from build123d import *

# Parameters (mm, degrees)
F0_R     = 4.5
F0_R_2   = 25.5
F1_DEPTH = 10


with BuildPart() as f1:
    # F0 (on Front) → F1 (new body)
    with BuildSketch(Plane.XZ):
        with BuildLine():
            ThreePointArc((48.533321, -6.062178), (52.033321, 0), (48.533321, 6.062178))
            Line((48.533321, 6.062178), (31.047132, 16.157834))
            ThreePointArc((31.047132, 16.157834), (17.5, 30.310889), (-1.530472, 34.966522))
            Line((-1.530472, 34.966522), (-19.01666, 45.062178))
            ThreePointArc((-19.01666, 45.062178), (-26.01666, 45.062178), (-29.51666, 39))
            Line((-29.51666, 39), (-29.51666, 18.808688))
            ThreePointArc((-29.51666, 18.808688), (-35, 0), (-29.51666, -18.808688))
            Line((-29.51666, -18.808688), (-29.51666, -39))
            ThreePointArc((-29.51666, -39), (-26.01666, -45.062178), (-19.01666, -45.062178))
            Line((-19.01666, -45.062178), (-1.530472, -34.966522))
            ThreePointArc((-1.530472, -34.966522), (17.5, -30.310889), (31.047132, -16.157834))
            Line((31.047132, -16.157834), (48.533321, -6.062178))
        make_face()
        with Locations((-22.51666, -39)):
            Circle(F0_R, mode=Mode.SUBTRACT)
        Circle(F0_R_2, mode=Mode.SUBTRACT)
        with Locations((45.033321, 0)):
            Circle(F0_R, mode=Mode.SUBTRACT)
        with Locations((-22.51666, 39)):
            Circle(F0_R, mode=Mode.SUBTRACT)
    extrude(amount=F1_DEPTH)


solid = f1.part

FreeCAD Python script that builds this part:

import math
import FreeCAD as App
import Part
import Sketcher

V = App.Vector
Q = App.Units.Quantity

doc = App.newDocument("Part")
body = doc.addObject("PartDesign::Body", "Body")

# Sketch on XZ plane
sketch1 = body.newObject("Sketcher::SketchObject", "Sketch")
sketch1.AttachmentSupport = (doc.getObject("XZ_Plane"), [""])
sketch1.MapMode = "FlatFace"
sketch1.addGeometry([
    Part.ArcOfCircle(Part.Circle(V(45, 0, 0), V(0, 0, 1), 7), math.radians(-60), math.radians(60)),  # 0
    Part.LineSegment(V(48.5, 6.1, 0), V(31, 16.2, 0)),  # 1
    Part.ArcOfCircle(Part.Circle(V(0, 0, 0), V(0, 0, 1), 35), math.radians(27), math.radians(93)),  # 2
    Part.LineSegment(V(-1.5, 35, 0), V(-19, 45.1, 0)),  # 3
    Part.ArcOfCircle(Part.Circle(V(-22.5, 39, 0), V(0, 0, 1), 7), math.radians(60), math.radians(180)),  # 4
    Part.LineSegment(V(-29.5, 39, 0), V(-29.5, 18.8, 0)),  # 5
    Part.ArcOfCircle(Part.Circle(V(0, 0, 0), V(0, 0, 1), 35), math.radians(147), math.radians(213)),  # 6
    Part.LineSegment(V(-29.5, -18.8, 0), V(-29.5, -39, 0)),  # 7
    Part.ArcOfCircle(Part.Circle(V(-22.5, -39, 0), V(0, 0, 1), 7), math.radians(180), math.radians(300)),  # 8
    Part.LineSegment(V(-19, -45.1, 0), V(-1.5, -35, 0)),  # 9
    Part.ArcOfCircle(Part.Circle(V(0, 0, 0), V(0, 0, 1), 35), math.radians(-93), math.radians(-27)),  # 10
    Part.LineSegment(V(31, -16.2, 0), V(48.5, -6.1, 0)),  # 11
    Part.Circle(V(-22.5, -39, 0), V(0, 0, 1), 4.5),  # 12
    Part.Circle(V(0, 0, 0), V(0, 0, 1), 25.5),  # 13
    Part.Circle(V(-22.5, 39, 0), V(0, 0, 1), 4.5),  # 14
    Part.Circle(V(45, 0, 0), V(0, 0, 1), 4.5),  # 15
], False)
sketch1.addConstraint([
    Sketcher.Constraint("Tangent", 0, 2, 1, 1),
    Sketcher.Constraint("Coincident", 1, 2, 2, 1),
    Sketcher.Constraint("Coincident", 2, 2, 3, 1),
    Sketcher.Constraint("Tangent", 3, 2, 4, 1),
    Sketcher.Constraint("Tangent", 4, 2, 5, 1),
    Sketcher.Constraint("Coincident", 5, 2, 6, 1),
    Sketcher.Constraint("Coincident", 6, 2, 7, 1),
    Sketcher.Constraint("Tangent", 7, 2, 8, 1),
    Sketcher.Constraint("Tangent", 8, 2, 9, 1),
    Sketcher.Constraint("Coincident", 9, 2, 10, 1),
    Sketcher.Constraint("Coincident", 10, 2, 11, 1),
    Sketcher.Constraint("Tangent", 11, 2, 0, 1),
    Sketcher.Constraint("Vertical", 5),
    Sketcher.Constraint("Vertical", 7),
    Sketcher.Constraint("Coincident", 2, 3, -1, 1),
    Sketcher.Constraint("Coincident", 6, 3, -1, 1),
    Sketcher.Constraint("Coincident", 10, 3, -1, 1),
    Sketcher.Constraint("Coincident", 13, 3, -1, 1),
    Sketcher.Constraint("Coincident", 12, 3, 8, 3),
    Sketcher.Constraint("Coincident", 14, 3, 4, 3),
    Sketcher.Constraint("Coincident", 15, 3, 0, 3),
    Sketcher.Constraint("Equal", 0, 4),
    Sketcher.Constraint("Equal", 4, 8),
    Sketcher.Constraint("Equal", 2, 10),
    Sketcher.Constraint("Equal", 12, 14),
    Sketcher.Constraint("Equal", 14, 15),
    Sketcher.Constraint("Symmetric", 4, 3, 8, 3, -1),
    Sketcher.Constraint("Symmetric", 0, 2, 11, 2, -1),
    Sketcher.Constraint("Parallel", 1, 3),
    Sketcher.Constraint("Parallel", 9, 11),
    Sketcher.Constraint("Equal", 1, 3),
    Sketcher.Constraint("Diameter", 12, 9.0),
    Sketcher.Constraint("Diameter", 13, 51.0),
    Sketcher.Constraint("Radius", 0, 7.0),
    Sketcher.Constraint("Radius", 2, 35.000001),
    Sketcher.Constraint("Angle", 1, Q("150 deg")),
    Sketcher.Constraint("DistanceY", -1, 1, 4, 3, 39.0),
    Sketcher.Constraint("Radius", 6, 34.999997),
    Sketcher.Constraint("DistanceY", 5, 2, 5, 1, 20.191312),
])
pad1 = body.newObject("PartDesign::Pad", "Pad")
pad1.Profile = sketch1
pad1.Length = 10

doc.recompute()
